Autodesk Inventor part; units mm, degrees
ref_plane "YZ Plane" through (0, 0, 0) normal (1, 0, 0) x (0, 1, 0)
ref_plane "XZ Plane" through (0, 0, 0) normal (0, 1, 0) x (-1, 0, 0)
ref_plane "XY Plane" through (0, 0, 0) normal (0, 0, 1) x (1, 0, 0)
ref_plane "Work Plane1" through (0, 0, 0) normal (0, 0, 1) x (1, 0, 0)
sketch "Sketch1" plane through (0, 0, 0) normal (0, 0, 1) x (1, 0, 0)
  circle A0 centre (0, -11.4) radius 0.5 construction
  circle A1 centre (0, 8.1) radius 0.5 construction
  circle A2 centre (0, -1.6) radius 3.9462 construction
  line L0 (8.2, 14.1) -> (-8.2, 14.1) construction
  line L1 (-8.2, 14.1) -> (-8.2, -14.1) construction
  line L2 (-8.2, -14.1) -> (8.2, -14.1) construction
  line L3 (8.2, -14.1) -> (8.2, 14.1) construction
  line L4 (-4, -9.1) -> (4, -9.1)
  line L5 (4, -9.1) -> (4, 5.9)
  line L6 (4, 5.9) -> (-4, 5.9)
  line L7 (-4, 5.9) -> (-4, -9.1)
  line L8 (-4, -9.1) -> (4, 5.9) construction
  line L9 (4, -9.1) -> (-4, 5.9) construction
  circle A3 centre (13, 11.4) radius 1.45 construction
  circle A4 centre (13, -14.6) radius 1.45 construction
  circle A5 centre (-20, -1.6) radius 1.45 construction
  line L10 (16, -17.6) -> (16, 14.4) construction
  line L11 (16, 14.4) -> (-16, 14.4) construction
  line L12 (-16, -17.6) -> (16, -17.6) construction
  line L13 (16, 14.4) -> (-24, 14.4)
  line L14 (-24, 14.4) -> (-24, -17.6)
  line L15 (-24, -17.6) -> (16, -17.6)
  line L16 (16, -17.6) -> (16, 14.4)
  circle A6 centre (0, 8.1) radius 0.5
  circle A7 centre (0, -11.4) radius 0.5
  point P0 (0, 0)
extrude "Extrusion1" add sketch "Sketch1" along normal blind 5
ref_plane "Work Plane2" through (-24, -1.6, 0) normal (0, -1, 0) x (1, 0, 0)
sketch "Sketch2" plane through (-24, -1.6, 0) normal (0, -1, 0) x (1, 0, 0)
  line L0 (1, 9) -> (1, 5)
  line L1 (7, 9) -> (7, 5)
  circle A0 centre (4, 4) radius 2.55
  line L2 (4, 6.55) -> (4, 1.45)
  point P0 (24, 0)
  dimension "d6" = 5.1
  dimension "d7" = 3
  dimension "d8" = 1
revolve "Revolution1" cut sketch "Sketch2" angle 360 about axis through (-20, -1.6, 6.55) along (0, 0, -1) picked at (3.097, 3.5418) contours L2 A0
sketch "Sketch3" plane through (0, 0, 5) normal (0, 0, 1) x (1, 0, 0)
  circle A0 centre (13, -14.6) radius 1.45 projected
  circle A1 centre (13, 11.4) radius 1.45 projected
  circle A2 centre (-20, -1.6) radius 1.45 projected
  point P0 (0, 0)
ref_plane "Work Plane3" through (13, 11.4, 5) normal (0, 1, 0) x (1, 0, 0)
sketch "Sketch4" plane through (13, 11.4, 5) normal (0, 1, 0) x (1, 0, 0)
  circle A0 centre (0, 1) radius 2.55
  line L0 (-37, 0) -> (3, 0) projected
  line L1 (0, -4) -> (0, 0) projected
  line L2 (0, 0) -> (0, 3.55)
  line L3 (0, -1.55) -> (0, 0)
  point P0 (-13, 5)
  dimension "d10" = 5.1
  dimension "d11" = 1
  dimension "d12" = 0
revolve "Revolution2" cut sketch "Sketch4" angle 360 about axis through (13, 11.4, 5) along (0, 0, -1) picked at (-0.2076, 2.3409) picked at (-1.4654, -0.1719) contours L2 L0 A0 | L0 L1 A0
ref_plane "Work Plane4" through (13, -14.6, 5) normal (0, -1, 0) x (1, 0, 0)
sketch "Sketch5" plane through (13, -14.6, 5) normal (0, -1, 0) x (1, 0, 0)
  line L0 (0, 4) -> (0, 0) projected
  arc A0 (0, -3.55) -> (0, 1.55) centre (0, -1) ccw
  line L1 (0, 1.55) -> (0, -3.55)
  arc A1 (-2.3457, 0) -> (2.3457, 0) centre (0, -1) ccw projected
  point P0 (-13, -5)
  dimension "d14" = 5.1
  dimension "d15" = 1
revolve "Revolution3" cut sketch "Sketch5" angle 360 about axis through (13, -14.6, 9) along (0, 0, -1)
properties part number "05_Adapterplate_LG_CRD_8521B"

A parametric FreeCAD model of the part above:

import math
import FreeCAD as App
import Part
import Sketcher

V = App.Vector


def add_polygon(sketch, points):
    """Adds a closed chain of lines whose ends are joined by coincident constraints."""
    first, n = sketch.GeometryCount, len(points)
    for a, b in zip(points, points[1:] + points[:1]):
        sketch.addGeometry(Part.LineSegment(App.Vector(*a, 0), App.Vector(*b, 0)), False)
    for i in range(n):
        sketch.addConstraint(Sketcher.Constraint("Coincident", first + i, 2, first + (i + 1) % n, 1))

doc = App.newDocument("Part")
body = doc.addObject("PartDesign::Body", "Body")

sketch1 = doc.addObject("Sketcher::SketchObject", "Sketch")
body.addObject(sketch1)
sketch1.AttachmentSupport = (doc.XY_Plane, [""])
sketch1.MapMode = "FlatFace"
add_polygon(sketch1, [(16, -17.6), (16, 14.4), (-24, 14.4), (-24, -17.6)])
sketch1.addGeometry(Part.Circle(V(0, -11.4, 0), V(0, 0, 1), 0.5), False)
add_polygon(sketch1, [(4, -9.1), (-4, -9.1), (-4, 5.9), (4, 5.9)])
sketch1.addGeometry(Part.Circle(V(0, 8.1, 0), V(0, 0, 1), 0.5), False)
sketch1.addConstraint([
    Sketcher.Constraint("Vertical", 0),
    Sketcher.Constraint("Horizontal", 1),
    Sketcher.Constraint("Vertical", 2),
    Sketcher.Constraint("Horizontal", 3),
    Sketcher.Constraint("Horizontal", 5),
    Sketcher.Constraint("Vertical", 6),
    Sketcher.Constraint("Horizontal", 7),
    Sketcher.Constraint("Vertical", 8),
    Sketcher.Constraint("Equal", 4, 9),
    Sketcher.Constraint("PointOnObject", 4, 3, -2),
    Sketcher.Constraint("PointOnObject", 9, 3, -2),
    Sketcher.Constraint("Diameter", 4, 1.0),
    Sketcher.Constraint("DistanceX", 1, 2, 1, 1, 40.0),
    Sketcher.Constraint("DistanceX", 5, 2, 5, 1, 8.0),
    Sketcher.Constraint("DistanceY", 0, 1, 0, 2, 32.0),
    Sketcher.Constraint("DistanceY", 6, 1, 6, 2, 15.0),
    Sketcher.Constraint("DistanceX", -1, 1, 0, 2, 16.0),
    Sketcher.Constraint("DistanceX", 5, 2, -1, 1, 4.0),
    Sketcher.Constraint("DistanceY", 4, 3, -1, 1, 11.4),
    Sketcher.Constraint("DistanceY", -1, 1, 9, 3, 8.1),
    Sketcher.Constraint("DistanceY", -1, 1, 0, 2, 14.4),
    Sketcher.Constraint("DistanceY", 5, 2, -1, 1, 9.1),
])
pad1 = doc.addObject("PartDesign::Pad", "Pad")
body.addObject(pad1)
pad1.Profile = sketch1
pad1.Length = 5

sketch2 = doc.addObject("Sketcher::SketchObject", "Sketch001")
body.addObject(sketch2)
sketch2.AttachmentSupport = (doc.XZ_Plane, [""])
sketch2.MapMode = "FlatFace"
sketch2.AttachmentOffset = App.Placement(V(0, 0, 1.6), App.Rotation())
sketch2.addGeometry([
    Part.LineSegment(V(-20, 1.45, 0), V(-20, 6.55, 0)),
    Part.ArcOfCircle(Part.Circle(V(-20, 4, 0), V(0, 0, 1), 2.55), math.radians(90), math.radians(270)),
], False)
sketch2.addGeometry(Part.LineSegment(V(-20, 6.55, 0), V(-20, 1.45, 0)), True)
sketch2.addConstraint([
    Sketcher.Constraint("Coincident", 0, 1, 1, 2),
    Sketcher.Constraint("Coincident", 1, 1, 0, 2),
    Sketcher.Constraint("Vertical", 0),
    Sketcher.Constraint("Vertical", 2),
    Sketcher.Constraint("Coincident", 2, 1, 1, 1),
    Sketcher.Constraint("Vertical", 1, 3, 0, 1),
    Sketcher.Constraint("Equal", 0, 2),
    Sketcher.Constraint("Radius", 1, 2.55),
    Sketcher.Constraint("DistanceX", 1, 3, -1, 1, 20.0),
    Sketcher.Constraint("DistanceY", -1, 1, 1, 3, 4.0),
])
groove = doc.addObject("PartDesign::Groove", "Groove")
body.addObject(groove)
groove.Profile = sketch2
groove.ReferenceAxis = (sketch2, ["Axis0"])
groove.Angle = 360

sketch3 = doc.addObject("Sketcher::SketchObject", "Sketch002")
body.addObject(sketch3)
sketch3.AttachmentSupport = (doc.XZ_Plane, [""])
sketch3.MapMode = "FlatFace"
sketch3.AttachmentOffset = App.Placement(V(0, 0, -11.4), App.Rotation())
sketch3.addGeometry([
    Part.ArcOfCircle(Part.Circle(V(13, 4, 0), V(0, 0, 1), 2.55), math.radians(90), math.radians(270)),
    Part.LineSegment(V(13, 6.55, 0), V(13, 1.45, 0)),
], False)
sketch3.addGeometry(Part.LineSegment(V(13, 6.55, 0), V(13, 1.45, 0)), True)
sketch3.addConstraint([
    Sketcher.Constraint("Coincident", 0, 1, 1, 1),
    Sketcher.Constraint("Coincident", 1, 2, 0, 2),
    Sketcher.Constraint("Vertical", 1),
    Sketcher.Constraint("Vertical", 2),
    Sketcher.Constraint("Coincident", 2, 1, 0, 1),
    Sketcher.Constraint("Equal", 1, 2),
    Sketcher.Constraint("Radius", 0, 2.55),
    Sketcher.Constraint("DistanceX", -1, 1, 0, 3, 13.0),
    Sketcher.Constraint("DistanceY", -1, 1, 0, 3, 4.0),
    Sketcher.Constraint("DistanceX", -1, 1, 0, 1, 13.0),
])
groove2 = doc.addObject("PartDesign::Groove", "Groove001")
body.addObject(groove2)
groove2.Profile = sketch3
groove2.ReferenceAxis = (sketch3, ["Axis0"])
groove2.Angle = 360

sketch4 = doc.addObject("Sketcher::SketchObject", "Sketch003")
body.addObject(sketch4)
sketch4.AttachmentSupport = (doc.XZ_Plane, [""])
sketch4.MapMode = "FlatFace"
sketch4.AttachmentOffset = App.Placement(V(0, 0, 14.6), App.Rotation())
sketch4.addGeometry([
    Part.ArcOfCircle(Part.Circle(V(13, 4, 0), V(0, 0, 1), 2.55), math.radians(-90), math.radians(90)),
    Part.LineSegment(V(13, 6.55, 0), V(13, 1.45, 0)),
], False)
sketch4.addGeometry(Part.LineSegment(V(13, 6.55, 0), V(13, 1.45, 0)), True)
sketch4.addConstraint([
    Sketcher.Constraint("Coincident", 0, 1, 1, 2),
    Sketcher.Constraint("Coincident", 1, 1, 0, 2),
    Sketcher.Constraint("Vertical", 1),
    Sketcher.Constraint("Vertical", 2),
    Sketcher.Constraint("Coincident", 2, 1, 1, 1),
    Sketcher.Constraint("Equal", 1, 2),
    Sketcher.Constraint("Radius", 0, 2.55),
    Sketcher.Constraint("DistanceX", -1, 1, 0, 3, 13.0),
    Sketcher.Constraint("DistanceY", -1, 1, 0, 3, 4.0),
    Sketcher.Constraint("DistanceX", -1, 1, 0, 1, 13.0),
])
groove3 = doc.addObject("PartDesign::Groove", "Groove002")
body.addObject(groove3)
groove3.Profile = sketch4
groove3.ReferenceAxis = (sketch4, ["Axis0"])
groove3.Angle = 360

doc.recompute()
